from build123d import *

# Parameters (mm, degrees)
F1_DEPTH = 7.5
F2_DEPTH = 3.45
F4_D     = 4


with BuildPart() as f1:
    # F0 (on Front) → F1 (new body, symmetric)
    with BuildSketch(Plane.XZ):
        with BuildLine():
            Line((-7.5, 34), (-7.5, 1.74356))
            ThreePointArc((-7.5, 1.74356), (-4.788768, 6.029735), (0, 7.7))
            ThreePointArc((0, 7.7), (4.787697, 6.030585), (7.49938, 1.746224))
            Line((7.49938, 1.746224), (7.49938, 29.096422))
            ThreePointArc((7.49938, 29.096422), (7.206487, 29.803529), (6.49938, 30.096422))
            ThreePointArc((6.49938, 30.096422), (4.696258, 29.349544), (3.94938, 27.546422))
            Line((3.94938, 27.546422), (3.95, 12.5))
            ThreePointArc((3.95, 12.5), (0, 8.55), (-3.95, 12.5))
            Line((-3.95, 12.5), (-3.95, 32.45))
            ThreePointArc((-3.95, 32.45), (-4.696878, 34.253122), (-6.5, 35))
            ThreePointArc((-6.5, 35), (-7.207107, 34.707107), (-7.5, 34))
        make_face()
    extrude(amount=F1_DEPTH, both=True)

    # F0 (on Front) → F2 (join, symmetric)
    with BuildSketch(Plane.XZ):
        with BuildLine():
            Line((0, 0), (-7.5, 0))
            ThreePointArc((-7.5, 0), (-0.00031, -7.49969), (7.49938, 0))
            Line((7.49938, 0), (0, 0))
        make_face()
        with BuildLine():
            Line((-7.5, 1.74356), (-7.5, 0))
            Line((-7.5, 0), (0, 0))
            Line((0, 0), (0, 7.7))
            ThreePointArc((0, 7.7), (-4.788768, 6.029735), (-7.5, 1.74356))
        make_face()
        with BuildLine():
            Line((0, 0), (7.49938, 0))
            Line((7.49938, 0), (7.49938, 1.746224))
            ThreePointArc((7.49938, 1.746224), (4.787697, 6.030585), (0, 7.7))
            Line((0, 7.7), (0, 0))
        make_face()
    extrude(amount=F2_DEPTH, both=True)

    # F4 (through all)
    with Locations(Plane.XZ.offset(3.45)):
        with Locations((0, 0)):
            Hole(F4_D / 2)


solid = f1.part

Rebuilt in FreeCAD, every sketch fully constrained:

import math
import FreeCAD as App
import Part
import Sketcher

V = App.Vector

doc = App.newDocument("Part")
body = doc.addObject("PartDesign::Body", "Body")

sketch1 = body.newObject("Sketcher::SketchObject", "Sketch")
sketch1.AttachmentSupport = (doc.getObject("XZ_Plane"), [""])
sketch1.MapMode = "FlatFace"
sketch1.addGeometry([
    Part.LineSegment(V(-7.5, 34, 0), V(-7.5, 1.7, 0)),
    Part.ArcOfCircle(Part.Circle(V(0, 0, 0), V(0, 0, 1), 7.7), math.radians(90), math.radians(167)),
    Part.ArcOfCircle(Part.Circle(V(0, 0, 0), V(0, 0, 1), 7.7), math.radians(13), math.radians(90)),
    Part.LineSegment(V(7.5, 1.7, 0), V(7.5, 29.1, 0)),
    Part.ArcOfCircle(Part.Circle(V(6.5, 29.1, 0), V(0, 0, 1), 1), math.radians(0), math.radians(90)),
    Part.ArcOfCircle(Part.Circle(V(6.5, 27.5, 0), V(0, 0, 1), 2.6), math.radians(90), math.radians(180)),
    Part.LineSegment(V(3.9, 27.5, 0), V(4, 12.5, 0)),
    Part.ArcOfCircle(Part.Circle(V(0, 12.5, 0), V(0, 0, 1), 4), math.radians(180), math.radians(360)),
    Part.LineSegment(V(-4, 12.5, 0), V(-4, 32.5, 0)),
    Part.ArcOfCircle(Part.Circle(V(-6.5, 32.4, 0), V(0, 0, 1), 2.6), math.radians(0), math.radians(90)),
    Part.ArcOfCircle(Part.Circle(V(-6.5, 34, 0), V(0, 0, 1), 1), math.radians(90), math.radians(180)),
], False)
sketch1.addConstraint([
    Sketcher.Constraint("Coincident", 0, 2, 1, 2),
    Sketcher.Constraint("Tangent", 1, 1, 2, 2),
    Sketcher.Constraint("Coincident", 2, 1, 3, 1),
    Sketcher.Constraint("Tangent", 3, 2, 4, 1),
    Sketcher.Constraint("Tangent", 4, 2, 5, 1),
    Sketcher.Constraint("Coincident", 5, 2, 6, 1),
    Sketcher.Constraint("Coincident", 6, 2, 7, 2),
    Sketcher.Constraint("Tangent", 7, 1, 8, 1),
    Sketcher.Constraint("Tangent", 8, 2, 9, 1),
    Sketcher.Constraint("Tangent", 9, 2, 10, 1),
    Sketcher.Constraint("Tangent", 10, 2, 0, 1),
    Sketcher.Constraint("Vertical", 0),
    Sketcher.Constraint("Vertical", 3),
    Sketcher.Constraint("Vertical", 8),
    Sketcher.Constraint("Coincident", 1, 3, -1, 1),
    Sketcher.Constraint("Equal", 1, 2),
    Sketcher.Constraint("Equal", 5, 9),
    Sketcher.Constraint("Equal", 4, 10),
    Sketcher.Constraint("Symmetric", 6, 2, 7, 1, -2),
    Sketcher.Constraint("PointOnObject", 1, 1, -2),
    Sketcher.Constraint("Vertical", 4, 3, 5, 3),
    Sketcher.Constraint("Vertical", 9, 3, 10, 3),
    Sketcher.Constraint("Radius", 4, 0.999999),
    Sketcher.Constraint("Radius", 1, 7.699999),
    Sketcher.Constraint("Radius", 5, 2.550001),
    Sketcher.Constraint("Radius", 7, 3.95),
    Sketcher.Constraint("DistanceY", -1, 1, 10, 3, 34.000001),
    Sketcher.Constraint("DistanceY", 8, 1, 8, 2, 19.95),
    Sketcher.Constraint("DistanceY", 5, 2, 4, 3, 1.550001),
    Sketcher.Constraint("DistanceY", 3, 1, 3, 2, 27.350198),
    Sketcher.Constraint("DistanceX", -1, 1, 4, 3, 6.499381),
])
pad1 = body.newObject("PartDesign::Pad", "Pad")
pad1.Profile = sketch1
pad1.Length = 15
pad1.Midplane = True

sketch2 = body.newObject("Sketcher::SketchObject", "Sketch001")
sketch2.AttachmentSupport = (doc.getObject("XZ_Plane"), [""])
sketch2.MapMode = "FlatFace"
sketch2.addGeometry([
    Part.ArcOfCircle(Part.Circle(V(0, 0, 0), V(0, 0, 1), 7.5), math.radians(180), math.radians(360)),
    Part.LineSegment(V(7.5, 0, 0), V(7.5, 1.7, 0)),
    Part.ArcOfCircle(Part.Circle(V(0, 0, 0), V(0, 0, 1), 7.7), math.radians(13), math.radians(90)),
    Part.ArcOfCircle(Part.Circle(V(0, 0, 0), V(0, 0, 1), 7.7), math.radians(90), math.radians(167)),
    Part.LineSegment(V(-7.5, 1.7, 0), V(-7.5, 0, 0)),
], False)
sketch2.addConstraint([
    Sketcher.Constraint("Tangent", 0, 2, 1, 1),
    Sketcher.Constraint("Coincident", 1, 2, 2, 1),
    Sketcher.Constraint("Tangent", 2, 2, 3, 1),
    Sketcher.Constraint("Coincident", 3, 2, 4, 1),
    Sketcher.Constraint("Tangent", 4, 2, 0, 1),
    Sketcher.Constraint("Vertical", 1),
    Sketcher.Constraint("Vertical", 4),
    Sketcher.Constraint("Coincident", 2, 3, -1, 1),
    Sketcher.Constraint("Equal", 2, 3),
    Sketcher.Constraint("PointOnObject", 0, 3, -1),
    Sketcher.Constraint("PointOnObject", 2, 2, -2),
    Sketcher.Constraint("Radius", 2, 7.7),
    Sketcher.Constraint("DistanceX", 3, 2, -1, 1, 7.5),
    Sketcher.Constraint("Radius", 0, 7.49969),
])
pad2 = body.newObject("PartDesign::Pad", "Pad001")
pad2.Profile = sketch2
pad2.Length = 6.9
pad2.Midplane = True

sketch3 = body.newObject("Sketcher::SketchObject", "Sketch002")
sketch3.AttachmentSupport = (doc.getObject("XZ_Plane"), [""])
sketch3.MapMode = "FlatFace"
sketch3.AttachmentOffset = App.Placement(V(0, 0, 3.45), App.Rotation())
sketch3.addGeometry(Part.Circle(V(0, 0, 0), V(0, 0, 1), 2), False)
sketch3.addConstraint([
    Sketcher.Constraint("Coincident", 0, 3, -1, 1),
    Sketcher.Constraint("Diameter", 0, 4.0),
])
doc.recompute()
hole = body.newObject("PartDesign::Hole", "Hole")
hole.Profile = sketch3
hole.ThreadType = "None"
hole.Diameter = 4
hole.DepthType = "ThroughAll"

doc.recompute()
